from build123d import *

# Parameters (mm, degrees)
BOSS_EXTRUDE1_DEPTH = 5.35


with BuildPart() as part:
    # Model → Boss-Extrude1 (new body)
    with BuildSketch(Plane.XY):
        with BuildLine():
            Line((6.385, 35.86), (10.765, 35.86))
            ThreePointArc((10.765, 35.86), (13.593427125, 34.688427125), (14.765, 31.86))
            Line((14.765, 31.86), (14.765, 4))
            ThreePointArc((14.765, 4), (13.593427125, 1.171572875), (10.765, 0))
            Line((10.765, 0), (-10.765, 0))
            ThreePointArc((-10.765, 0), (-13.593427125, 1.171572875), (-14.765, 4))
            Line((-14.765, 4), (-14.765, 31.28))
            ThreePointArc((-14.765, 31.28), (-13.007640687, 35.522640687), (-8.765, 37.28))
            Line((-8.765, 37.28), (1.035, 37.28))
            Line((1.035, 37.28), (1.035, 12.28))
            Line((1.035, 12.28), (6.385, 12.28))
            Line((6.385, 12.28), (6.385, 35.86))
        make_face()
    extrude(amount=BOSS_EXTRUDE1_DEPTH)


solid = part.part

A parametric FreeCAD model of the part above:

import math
import FreeCAD as App
import Part
import Sketcher
from FreeCAD import Vector
Q = App.Units.Quantity

doc = App.newDocument("Part")
body = doc.addObject("PartDesign::Body", "Body")

# Sketch on XY plane
sketch1 = body.newObject("Sketcher::SketchObject", "Sketch")
sketch1.AttachmentSupport = (doc.getObject("XY_Plane"), [""])
sketch1.MapMode = "FlatFace"
sketch1.addGeometry([
    Part.LineSegment(Vector(10.8, 35.9, 0), Vector(6.4, 35.9, 0)),  # 0
    Part.LineSegment(Vector(6.4, 35.9, 0), Vector(6.4, 12.3, 0)),  # 1
    Part.LineSegment(Vector(6.4, 12.3, 0), Vector(1, 12.3, 0)),  # 2
    Part.LineSegment(Vector(1, 12.3, 0), Vector(1, 37.3, 0)),  # 3
    Part.LineSegment(Vector(1, 37.3, 0), Vector(-8.8, 37.3, 0)),  # 4
    Part.ArcOfCircle(Part.Circle(Vector(-8.8, 31.3, 0), Vector(0, 0, 1), 6), math.radians(90), math.radians(180)),  # 5
    Part.LineSegment(Vector(-14.8, 31.3, 0), Vector(-14.8, 4, 0)),  # 6
    Part.ArcOfCircle(Part.Circle(Vector(-10.8, 4, 0), Vector(0, 0, 1), 4), math.radians(180), math.radians(270)),  # 7
    Part.LineSegment(Vector(-10.8, 0, 0), Vector(10.8, 0, 0)),  # 8
    Part.ArcOfCircle(Part.Circle(Vector(10.8, 4, 0), Vector(0, 0, 1), 4), math.radians(-90), math.radians(0)),  # 9
    Part.LineSegment(Vector(14.8, 4, 0), Vector(14.8, 31.9, 0)),  # 10
    Part.ArcOfCircle(Part.Circle(Vector(10.8, 31.9, 0), Vector(0, 0, 1), 4), math.radians(0), math.radians(90)),  # 11
], False)
sketch1.addConstraint([
    Sketcher.Constraint("Coincident", 0, 2, 1, 1),
    Sketcher.Constraint("Coincident", 1, 2, 2, 1),
    Sketcher.Constraint("Coincident", 2, 2, 3, 1),
    Sketcher.Constraint("Coincident", 3, 2, 4, 1),
    Sketcher.Constraint("Tangent", 4, 2, 5, 1),
    Sketcher.Constraint("Tangent", 5, 2, 6, 1),
    Sketcher.Constraint("Tangent", 6, 2, 7, 1),
    Sketcher.Constraint("Tangent", 7, 2, 8, 1),
    Sketcher.Constraint("Tangent", 8, 2, 9, 1),
    Sketcher.Constraint("Tangent", 9, 2, 10, 1),
    Sketcher.Constraint("Tangent", 10, 2, 11, 1),
    Sketcher.Constraint("Tangent", 11, 2, 0, 1),
    Sketcher.Constraint("Horizontal", 0),
    Sketcher.Constraint("Vertical", 1),
    Sketcher.Constraint("Horizontal", 2),
    Sketcher.Constraint("Vertical", 3),
    Sketcher.Constraint("Horizontal", 4),
    Sketcher.Constraint("Vertical", 6),
    Sketcher.Constraint("Horizontal", 8),
    Sketcher.Constraint("Vertical", 10),
    Sketcher.Constraint("Equal", 7, 9),
    Sketcher.Constraint("Equal", 9, 11),
    Sketcher.Constraint("Symmetric", 7, 2, 8, 2, -1, 1),
    Sketcher.Constraint("Radius", 5, Q("6 mm")),
    Sketcher.Constraint("Radius", 7, Q("4 mm")),
    Sketcher.Constraint("DistanceY", 3, 1, 3, 2, Q("25 mm")),
    Sketcher.Constraint("DistanceX", 4, 2, 4, 1, Q("9.8 mm")),
    Sketcher.Constraint("DistanceX", 0, 2, 0, 1, Q("4.38 mm")),
    Sketcher.Constraint("DistanceX", 2, 2, 2, 1, Q("5.35 mm")),
    Sketcher.Constraint("DistanceY", 1, 2, 1, 1, Q("23.58 mm")),
    Sketcher.Constraint("DistanceY", 6, 2, 6, 1, Q("27.28 mm")),
])
pad1 = body.newObject("PartDesign::Pad", "Pad")
pad1.Profile = sketch1
pad1.Length = 5.35

doc.recompute()
